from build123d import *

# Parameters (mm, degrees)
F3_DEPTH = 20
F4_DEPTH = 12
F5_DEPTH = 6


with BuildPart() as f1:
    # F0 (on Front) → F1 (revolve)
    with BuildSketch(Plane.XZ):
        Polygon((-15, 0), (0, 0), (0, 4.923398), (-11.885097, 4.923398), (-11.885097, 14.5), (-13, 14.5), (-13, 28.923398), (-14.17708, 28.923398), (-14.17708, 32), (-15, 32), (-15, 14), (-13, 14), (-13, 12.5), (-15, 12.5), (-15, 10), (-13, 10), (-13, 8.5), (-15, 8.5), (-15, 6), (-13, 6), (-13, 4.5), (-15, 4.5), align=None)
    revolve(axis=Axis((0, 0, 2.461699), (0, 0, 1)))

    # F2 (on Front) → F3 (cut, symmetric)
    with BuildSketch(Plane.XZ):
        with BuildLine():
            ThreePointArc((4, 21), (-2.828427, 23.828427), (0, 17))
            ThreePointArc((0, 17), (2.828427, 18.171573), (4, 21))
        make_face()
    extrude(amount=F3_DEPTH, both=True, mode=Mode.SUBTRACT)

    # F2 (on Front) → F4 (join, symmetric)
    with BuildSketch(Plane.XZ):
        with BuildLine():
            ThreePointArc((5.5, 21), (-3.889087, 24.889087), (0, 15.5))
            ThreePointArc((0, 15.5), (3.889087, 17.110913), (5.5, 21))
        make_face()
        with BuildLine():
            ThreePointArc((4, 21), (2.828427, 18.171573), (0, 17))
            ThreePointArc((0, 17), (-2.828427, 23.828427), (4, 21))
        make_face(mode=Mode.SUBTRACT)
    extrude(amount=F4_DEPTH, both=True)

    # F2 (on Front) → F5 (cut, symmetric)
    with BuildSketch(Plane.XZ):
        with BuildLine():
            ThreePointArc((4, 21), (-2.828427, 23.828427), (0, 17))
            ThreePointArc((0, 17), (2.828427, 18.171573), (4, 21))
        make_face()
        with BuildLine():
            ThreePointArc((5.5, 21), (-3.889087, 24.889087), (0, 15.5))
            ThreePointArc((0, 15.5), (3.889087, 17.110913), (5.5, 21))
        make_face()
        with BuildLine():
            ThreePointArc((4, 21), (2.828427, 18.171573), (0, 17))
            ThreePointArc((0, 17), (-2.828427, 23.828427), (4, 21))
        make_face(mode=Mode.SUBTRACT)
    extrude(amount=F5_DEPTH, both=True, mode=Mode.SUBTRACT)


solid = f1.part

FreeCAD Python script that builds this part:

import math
import FreeCAD as App
import Part
import Sketcher

doc = App.newDocument("Part")
body = doc.addObject("PartDesign::Body", "Body")

sketch1 = body.newObject("Sketcher::SketchObject", "Sketch")
sketch1.AttachmentSupport = (doc.getObject("XZ_Plane"), [""])
sketch1.MapMode = "FlatFace"
sketch1.addGeometry(Part.LineSegment(App.Vector(-15, 0, 0), App.Vector(0, 0, 0)), False)
sketch1.addGeometry(Part.LineSegment(App.Vector(0, 0, 0), App.Vector(0, 4.9, 0)), False)
sketch1.addGeometry(Part.LineSegment(App.Vector(0, 4.9, 0), App.Vector(-11.9, 4.9, 0)), False)
sketch1.addGeometry(Part.LineSegment(App.Vector(-11.9, 4.9, 0), App.Vector(-11.9, 14.5, 0)), False)
sketch1.addGeometry(Part.LineSegment(App.Vector(-11.9, 14.5, 0), App.Vector(-13, 14.5, 0)), False)
sketch1.addGeometry(Part.LineSegment(App.Vector(-13, 14.5, 0), App.Vector(-13, 28.9, 0)), False)
sketch1.addGeometry(Part.LineSegment(App.Vector(-13, 28.9, 0), App.Vector(-14.2, 28.9, 0)), False)
sketch1.addGeometry(Part.LineSegment(App.Vector(-14.2, 28.9, 0), App.Vector(-14.2, 32, 0)), False)
sketch1.addGeometry(Part.LineSegment(App.Vector(-14.2, 32, 0), App.Vector(-15, 32, 0)), False)
sketch1.addGeometry(Part.LineSegment(App.Vector(-15, 32, 0), App.Vector(-15, 14, 0)), False)
sketch1.addGeometry(Part.LineSegment(App.Vector(-15, 14, 0), App.Vector(-13, 14, 0)), False)
sketch1.addGeometry(Part.LineSegment(App.Vector(-13, 14, 0), App.Vector(-13, 12.5, 0)), False)
sketch1.addGeometry(Part.LineSegment(App.Vector(-13, 12.5, 0), App.Vector(-15, 12.5, 0)), False)
sketch1.addGeometry(Part.LineSegment(App.Vector(-15, 12.5, 0), App.Vector(-15, 10, 0)), False)
sketch1.addGeometry(Part.LineSegment(App.Vector(-15, 10, 0), App.Vector(-13, 10, 0)), False)
sketch1.addGeometry(Part.LineSegment(App.Vector(-13, 10, 0), App.Vector(-13, 8.5, 0)), False)
sketch1.addGeometry(Part.LineSegment(App.Vector(-13, 8.5, 0), App.Vector(-15, 8.5, 0)), False)
sketch1.addGeometry(Part.LineSegment(App.Vector(-15, 8.5, 0), App.Vector(-15, 6, 0)), False)
sketch1.addGeometry(Part.LineSegment(App.Vector(-15, 6, 0), App.Vector(-13, 6, 0)), False)
sketch1.addGeometry(Part.LineSegment(App.Vector(-13, 6, 0), App.Vector(-13, 4.5, 0)), False)
sketch1.addGeometry(Part.LineSegment(App.Vector(-13, 4.5, 0), App.Vector(-15, 4.5, 0)), False)
sketch1.addGeometry(Part.LineSegment(App.Vector(-15, 4.5, 0), App.Vector(-15, 0, 0)), False)
sketch1.addConstraint(Sketcher.Constraint("Coincident", 0, 2, 1, 1))
sketch1.addConstraint(Sketcher.Constraint("Coincident", 1, 2, 2, 1))
sketch1.addConstraint(Sketcher.Constraint("Coincident", 2, 2, 3, 1))
sketch1.addConstraint(Sketcher.Constraint("Coincident", 3, 2, 4, 1))
sketch1.addConstraint(Sketcher.Constraint("Coincident", 4, 2, 5, 1))
sketch1.addConstraint(Sketcher.Constraint("Coincident", 5, 2, 6, 1))
sketch1.addConstraint(Sketcher.Constraint("Coincident", 6, 2, 7, 1))
sketch1.addConstraint(Sketcher.Constraint("Coincident", 7, 2, 8, 1))
sketch1.addConstraint(Sketcher.Constraint("Coincident", 8, 2, 9, 1))
sketch1.addConstraint(Sketcher.Constraint("Coincident", 9, 2, 10, 1))
sketch1.addConstraint(Sketcher.Constraint("Coincident", 10, 2, 11, 1))
sketch1.addConstraint(Sketcher.Constraint("Coincident", 11, 2, 12, 1))
sketch1.addConstraint(Sketcher.Constraint("Coincident", 12, 2, 13, 1))
sketch1.addConstraint(Sketcher.Constraint("Coincident", 13, 2, 14, 1))
sketch1.addConstraint(Sketcher.Constraint("Coincident", 14, 2, 15, 1))
sketch1.addConstraint(Sketcher.Constraint("Coincident", 15, 2, 16, 1))
sketch1.addConstraint(Sketcher.Constraint("Coincident", 16, 2, 17, 1))
sketch1.addConstraint(Sketcher.Constraint("Coincident", 17, 2, 18, 1))
sketch1.addConstraint(Sketcher.Constraint("Coincident", 18, 2, 19, 1))
sketch1.addConstraint(Sketcher.Constraint("Coincident", 19, 2, 20, 1))
sketch1.addConstraint(Sketcher.Constraint("Coincident", 20, 2, 21, 1))
sketch1.addConstraint(Sketcher.Constraint("Coincident", 21, 2, 0, 1))
sketch1.addConstraint(Sketcher.Constraint("Horizontal", 0))
sketch1.addConstraint(Sketcher.Constraint("Vertical", 1))
sketch1.addConstraint(Sketcher.Constraint("Horizontal", 2))
sketch1.addConstraint(Sketcher.Constraint("Vertical", 3))
sketch1.addConstraint(Sketcher.Constraint("Horizontal", 4))
sketch1.addConstraint(Sketcher.Constraint("Vertical", 5))
sketch1.addConstraint(Sketcher.Constraint("Horizontal", 6))
sketch1.addConstraint(Sketcher.Constraint("Vertical", 7))
sketch1.addConstraint(Sketcher.Constraint("Horizontal", 8))
sketch1.addConstraint(Sketcher.Constraint("Vertical", 9))
sketch1.addConstraint(Sketcher.Constraint("Horizontal", 10))
sketch1.addConstraint(Sketcher.Constraint("Vertical", 11))
sketch1.addConstraint(Sketcher.Constraint("Horizontal", 12))
sketch1.addConstraint(Sketcher.Constraint("Vertical", 13))
sketch1.addConstraint(Sketcher.Constraint("Horizontal", 14))
sketch1.addConstraint(Sketcher.Constraint("Vertical", 15))
sketch1.addConstraint(Sketcher.Constraint("Horizontal", 16))
sketch1.addConstraint(Sketcher.Constraint("Vertical", 17))
sketch1.addConstraint(Sketcher.Constraint("Horizontal", 18))
sketch1.addConstraint(Sketcher.Constraint("Vertical", 19))
sketch1.addConstraint(Sketcher.Constraint("Horizontal", 20))
sketch1.addConstraint(Sketcher.Constraint("Vertical", 21))
sketch1.addConstraint(Sketcher.Constraint("Coincident", 0, 2, -1, 1))
sketch1.addConstraint(Sketcher.Constraint("Vertical", 5, 2, 10, 2))
sketch1.addConstraint(Sketcher.Constraint("Vertical", 9, 2, 12, 2))
sketch1.addConstraint(Sketcher.Constraint("Vertical", 11, 2, 14, 2))
sketch1.addConstraint(Sketcher.Constraint("Vertical", 13, 2, 16, 2))
sketch1.addConstraint(Sketcher.Constraint("Vertical", 15, 2, 18, 2))
sketch1.addConstraint(Sketcher.Constraint("Vertical", 17, 2, 20, 2))
sketch1.addConstraint(Sketcher.Constraint("Equal", 11, 15))
sketch1.addConstraint(Sketcher.Constraint("Equal", 13, 17))
sketch1.addConstraint(Sketcher.Constraint("Equal", 15, 19))
sketch1.addConstraint(Sketcher.Constraint("DistanceX", 0, 1, 0, 2, 15.0))
sketch1.addConstraint(Sketcher.Constraint("DistanceX", 10, 1, 10, 2, 2.0))
sketch1.addConstraint(Sketcher.Constraint("DistanceY", 9, 2, 9, 1, 18.0))
sketch1.addConstraint(Sketcher.Constraint("DistanceY", 11, 2, 11, 1, 1.5))
sketch1.addConstraint(Sketcher.Constraint("DistanceY", 13, 2, 13, 1, 2.5))
sketch1.addConstraint(Sketcher.Constraint("DistanceY", 21, 2, 21, 1, 4.5))
sketch1.addConstraint(Sketcher.Constraint("DistanceY", 2, 2, 5, 2, 24.0))
sketch1.addConstraint(Sketcher.Constraint("DistanceY", 11, 2, 4, 2, 2.0))
sketch1.addConstraint(Sketcher.Constraint("DistanceX", 6, 2, 6, 1, 1.17708))
sketch1.addConstraint(Sketcher.Constraint("DistanceX", 2, 2, 2, 1, 11.885097))
sketch1.addConstraint(Sketcher.Constraint("DistanceY", 1, 1, 1, 2, 4.923398))
revolution = body.newObject("PartDesign::Revolution", "Revolution")
revolution.Profile = sketch1
revolution.ReferenceAxis = (sketch1, ["V_Axis"])
revolution.Angle = 360

sketch2 = body.newObject("Sketcher::SketchObject", "Sketch001")
sketch2.AttachmentSupport = (doc.getObject("XZ_Plane"), [""])
sketch2.MapMode = "FlatFace"
sketch2.addGeometry(Part.ArcOfCircle(Part.Circle(App.Vector(0, 21, 0), App.Vector(0, 0, 1), 4), math.radians(0), math.radians(270)), False)
sketch2.addGeometry(Part.ArcOfCircle(Part.Circle(App.Vector(0, 21, 0), App.Vector(0, 0, 1), 4), math.radians(-90), math.radians(0)), False)
sketch2.addConstraint(Sketcher.Constraint("Tangent", 0, 1, 1, 2))
sketch2.addConstraint(Sketcher.Constraint("Coincident", 1, 1, 0, 2))
sketch2.addConstraint(Sketcher.Constraint("PointOnObject", 0, 3, -2))
sketch2.addConstraint(Sketcher.Constraint("PointOnObject", 1, 1, -2))
sketch2.addConstraint(Sketcher.Constraint("Horizontal", 1, 3, 0, 1))
sketch2.addConstraint(Sketcher.Constraint("Radius", 0, 4.0))
sketch2.addConstraint(Sketcher.Constraint("DistanceY", -1, 1, 0, 3, 21.0))
pocket1 = body.newObject("PartDesign::Pocket", "Pocket")
pocket1.Profile = sketch2
pocket1.Length = 40
pocket1.Midplane = True

sketch3 = body.newObject("Sketcher::SketchObject", "Sketch002")
sketch3.AttachmentSupport = (doc.getObject("XZ_Plane"), [""])
sketch3.MapMode = "FlatFace"
sketch3.addGeometry(Part.ArcOfCircle(Part.Circle(App.Vector(0, 21, 0), App.Vector(0, 0, 1), 5.5), math.radians(0), math.radians(270)), False)
sketch3.addGeometry(Part.ArcOfCircle(Part.Circle(App.Vector(0, 21, 0), App.Vector(0, 0, 1), 5.5), math.radians(-90), math.radians(0)), False)
sketch3.addGeometry(Part.ArcOfCircle(Part.Circle(App.Vector(0, 21, 0), App.Vector(0, 0, 1), 4), math.radians(0), math.radians(270)), False)
sketch3.addGeometry(Part.ArcOfCircle(Part.Circle(App.Vector(0, 21, 0), App.Vector(0, 0, 1), 4), math.radians(-90), math.radians(0)), False)
sketch3.addConstraint(Sketcher.Constraint("Tangent", 0, 1, 1, 2))
sketch3.addConstraint(Sketcher.Constraint("Coincident", 1, 1, 0, 2))
sketch3.addConstraint(Sketcher.Constraint("Tangent", 2, 1, 3, 2))
sketch3.addConstraint(Sketcher.Constraint("Coincident", 3, 1, 2, 2))
sketch3.addConstraint(Sketcher.Constraint("Coincident", 2, 3, 0, 3))
sketch3.addConstraint(Sketcher.Constraint("PointOnObject", 0, 3, -2))
sketch3.addConstraint(Sketcher.Constraint("PointOnObject", 1, 1, -2))
sketch3.addConstraint(Sketcher.Constraint("PointOnObject", 3, 1, -2))
sketch3.addConstraint(Sketcher.Constraint("Horizontal", 3, 3, 0, 1))
sketch3.addConstraint(Sketcher.Constraint("Horizontal", 0, 1, 2, 1))
sketch3.addConstraint(Sketcher.Constraint("Radius", 2, 4.0))
sketch3.addConstraint(Sketcher.Constraint("Radius", 0, 5.5))
sketch3.addConstraint(Sketcher.Constraint("DistanceY", -1, 1, 0, 3, 21.0))
pad1 = body.newObject("PartDesign::Pad", "Pad")
pad1.Profile = sketch3
pad1.Length = 24
pad1.Midplane = True

sketch4 = body.newObject("Sketcher::SketchObject", "Sketch003")
sketch4.AttachmentSupport = (doc.getObject("XZ_Plane"), [""])
sketch4.MapMode = "FlatFace"
sketch4.addGeometry(Part.ArcOfCircle(Part.Circle(App.Vector(0, 21, 0), App.Vector(0, 0, 1), 5.5), math.radians(0), math.radians(270)), False)
sketch4.addGeometry(Part.ArcOfCircle(Part.Circle(App.Vector(0, 21, 0), App.Vector(0, 0, 1), 5.5), math.radians(-90), math.radians(0)), False)
sketch4.addGeometry(Part.ArcOfCircle(Part.Circle(App.Vector(0, 21, 0), App.Vector(0, 0, 1), 4), math.radians(0), math.radians(270)), False)
sketch4.addGeometry(Part.ArcOfCircle(Part.Circle(App.Vector(0, 21, 0), App.Vector(0, 0, 1), 4), math.radians(-90), math.radians(0)), False)
sketch4.addConstraint(Sketcher.Constraint("Tangent", 0, 1, 1, 2))
sketch4.addConstraint(Sketcher.Constraint("Coincident", 1, 1, 0, 2))
sketch4.addConstraint(Sketcher.Constraint("Tangent", 2, 1, 3, 2))
sketch4.addConstraint(Sketcher.Constraint("Coincident", 3, 1, 2, 2))
sketch4.addConstraint(Sketcher.Constraint("Coincident", 2, 3, 0, 3))
sketch4.addConstraint(Sketcher.Constraint("PointOnObject", 0, 3, -2))
sketch4.addConstraint(Sketcher.Constraint("PointOnObject", 1, 1, -2))
sketch4.addConstraint(Sketcher.Constraint("PointOnObject", 3, 1, -2))
sketch4.addConstraint(Sketcher.Constraint("Horizontal", 3, 3, 0, 1))
sketch4.addConstraint(Sketcher.Constraint("Horizontal", 0, 1, 2, 1))
sketch4.addConstraint(Sketcher.Constraint("Radius", 2, 4.0))
sketch4.addConstraint(Sketcher.Constraint("Radius", 0, 5.5))
sketch4.addConstraint(Sketcher.Constraint("DistanceY", -1, 1, 0, 3, 21.0))
pocket2 = body.newObject("PartDesign::Pocket", "Pocket001")
pocket2.Profile = sketch4
pocket2.Length = 12
pocket2.Midplane = True

doc.recompute()
